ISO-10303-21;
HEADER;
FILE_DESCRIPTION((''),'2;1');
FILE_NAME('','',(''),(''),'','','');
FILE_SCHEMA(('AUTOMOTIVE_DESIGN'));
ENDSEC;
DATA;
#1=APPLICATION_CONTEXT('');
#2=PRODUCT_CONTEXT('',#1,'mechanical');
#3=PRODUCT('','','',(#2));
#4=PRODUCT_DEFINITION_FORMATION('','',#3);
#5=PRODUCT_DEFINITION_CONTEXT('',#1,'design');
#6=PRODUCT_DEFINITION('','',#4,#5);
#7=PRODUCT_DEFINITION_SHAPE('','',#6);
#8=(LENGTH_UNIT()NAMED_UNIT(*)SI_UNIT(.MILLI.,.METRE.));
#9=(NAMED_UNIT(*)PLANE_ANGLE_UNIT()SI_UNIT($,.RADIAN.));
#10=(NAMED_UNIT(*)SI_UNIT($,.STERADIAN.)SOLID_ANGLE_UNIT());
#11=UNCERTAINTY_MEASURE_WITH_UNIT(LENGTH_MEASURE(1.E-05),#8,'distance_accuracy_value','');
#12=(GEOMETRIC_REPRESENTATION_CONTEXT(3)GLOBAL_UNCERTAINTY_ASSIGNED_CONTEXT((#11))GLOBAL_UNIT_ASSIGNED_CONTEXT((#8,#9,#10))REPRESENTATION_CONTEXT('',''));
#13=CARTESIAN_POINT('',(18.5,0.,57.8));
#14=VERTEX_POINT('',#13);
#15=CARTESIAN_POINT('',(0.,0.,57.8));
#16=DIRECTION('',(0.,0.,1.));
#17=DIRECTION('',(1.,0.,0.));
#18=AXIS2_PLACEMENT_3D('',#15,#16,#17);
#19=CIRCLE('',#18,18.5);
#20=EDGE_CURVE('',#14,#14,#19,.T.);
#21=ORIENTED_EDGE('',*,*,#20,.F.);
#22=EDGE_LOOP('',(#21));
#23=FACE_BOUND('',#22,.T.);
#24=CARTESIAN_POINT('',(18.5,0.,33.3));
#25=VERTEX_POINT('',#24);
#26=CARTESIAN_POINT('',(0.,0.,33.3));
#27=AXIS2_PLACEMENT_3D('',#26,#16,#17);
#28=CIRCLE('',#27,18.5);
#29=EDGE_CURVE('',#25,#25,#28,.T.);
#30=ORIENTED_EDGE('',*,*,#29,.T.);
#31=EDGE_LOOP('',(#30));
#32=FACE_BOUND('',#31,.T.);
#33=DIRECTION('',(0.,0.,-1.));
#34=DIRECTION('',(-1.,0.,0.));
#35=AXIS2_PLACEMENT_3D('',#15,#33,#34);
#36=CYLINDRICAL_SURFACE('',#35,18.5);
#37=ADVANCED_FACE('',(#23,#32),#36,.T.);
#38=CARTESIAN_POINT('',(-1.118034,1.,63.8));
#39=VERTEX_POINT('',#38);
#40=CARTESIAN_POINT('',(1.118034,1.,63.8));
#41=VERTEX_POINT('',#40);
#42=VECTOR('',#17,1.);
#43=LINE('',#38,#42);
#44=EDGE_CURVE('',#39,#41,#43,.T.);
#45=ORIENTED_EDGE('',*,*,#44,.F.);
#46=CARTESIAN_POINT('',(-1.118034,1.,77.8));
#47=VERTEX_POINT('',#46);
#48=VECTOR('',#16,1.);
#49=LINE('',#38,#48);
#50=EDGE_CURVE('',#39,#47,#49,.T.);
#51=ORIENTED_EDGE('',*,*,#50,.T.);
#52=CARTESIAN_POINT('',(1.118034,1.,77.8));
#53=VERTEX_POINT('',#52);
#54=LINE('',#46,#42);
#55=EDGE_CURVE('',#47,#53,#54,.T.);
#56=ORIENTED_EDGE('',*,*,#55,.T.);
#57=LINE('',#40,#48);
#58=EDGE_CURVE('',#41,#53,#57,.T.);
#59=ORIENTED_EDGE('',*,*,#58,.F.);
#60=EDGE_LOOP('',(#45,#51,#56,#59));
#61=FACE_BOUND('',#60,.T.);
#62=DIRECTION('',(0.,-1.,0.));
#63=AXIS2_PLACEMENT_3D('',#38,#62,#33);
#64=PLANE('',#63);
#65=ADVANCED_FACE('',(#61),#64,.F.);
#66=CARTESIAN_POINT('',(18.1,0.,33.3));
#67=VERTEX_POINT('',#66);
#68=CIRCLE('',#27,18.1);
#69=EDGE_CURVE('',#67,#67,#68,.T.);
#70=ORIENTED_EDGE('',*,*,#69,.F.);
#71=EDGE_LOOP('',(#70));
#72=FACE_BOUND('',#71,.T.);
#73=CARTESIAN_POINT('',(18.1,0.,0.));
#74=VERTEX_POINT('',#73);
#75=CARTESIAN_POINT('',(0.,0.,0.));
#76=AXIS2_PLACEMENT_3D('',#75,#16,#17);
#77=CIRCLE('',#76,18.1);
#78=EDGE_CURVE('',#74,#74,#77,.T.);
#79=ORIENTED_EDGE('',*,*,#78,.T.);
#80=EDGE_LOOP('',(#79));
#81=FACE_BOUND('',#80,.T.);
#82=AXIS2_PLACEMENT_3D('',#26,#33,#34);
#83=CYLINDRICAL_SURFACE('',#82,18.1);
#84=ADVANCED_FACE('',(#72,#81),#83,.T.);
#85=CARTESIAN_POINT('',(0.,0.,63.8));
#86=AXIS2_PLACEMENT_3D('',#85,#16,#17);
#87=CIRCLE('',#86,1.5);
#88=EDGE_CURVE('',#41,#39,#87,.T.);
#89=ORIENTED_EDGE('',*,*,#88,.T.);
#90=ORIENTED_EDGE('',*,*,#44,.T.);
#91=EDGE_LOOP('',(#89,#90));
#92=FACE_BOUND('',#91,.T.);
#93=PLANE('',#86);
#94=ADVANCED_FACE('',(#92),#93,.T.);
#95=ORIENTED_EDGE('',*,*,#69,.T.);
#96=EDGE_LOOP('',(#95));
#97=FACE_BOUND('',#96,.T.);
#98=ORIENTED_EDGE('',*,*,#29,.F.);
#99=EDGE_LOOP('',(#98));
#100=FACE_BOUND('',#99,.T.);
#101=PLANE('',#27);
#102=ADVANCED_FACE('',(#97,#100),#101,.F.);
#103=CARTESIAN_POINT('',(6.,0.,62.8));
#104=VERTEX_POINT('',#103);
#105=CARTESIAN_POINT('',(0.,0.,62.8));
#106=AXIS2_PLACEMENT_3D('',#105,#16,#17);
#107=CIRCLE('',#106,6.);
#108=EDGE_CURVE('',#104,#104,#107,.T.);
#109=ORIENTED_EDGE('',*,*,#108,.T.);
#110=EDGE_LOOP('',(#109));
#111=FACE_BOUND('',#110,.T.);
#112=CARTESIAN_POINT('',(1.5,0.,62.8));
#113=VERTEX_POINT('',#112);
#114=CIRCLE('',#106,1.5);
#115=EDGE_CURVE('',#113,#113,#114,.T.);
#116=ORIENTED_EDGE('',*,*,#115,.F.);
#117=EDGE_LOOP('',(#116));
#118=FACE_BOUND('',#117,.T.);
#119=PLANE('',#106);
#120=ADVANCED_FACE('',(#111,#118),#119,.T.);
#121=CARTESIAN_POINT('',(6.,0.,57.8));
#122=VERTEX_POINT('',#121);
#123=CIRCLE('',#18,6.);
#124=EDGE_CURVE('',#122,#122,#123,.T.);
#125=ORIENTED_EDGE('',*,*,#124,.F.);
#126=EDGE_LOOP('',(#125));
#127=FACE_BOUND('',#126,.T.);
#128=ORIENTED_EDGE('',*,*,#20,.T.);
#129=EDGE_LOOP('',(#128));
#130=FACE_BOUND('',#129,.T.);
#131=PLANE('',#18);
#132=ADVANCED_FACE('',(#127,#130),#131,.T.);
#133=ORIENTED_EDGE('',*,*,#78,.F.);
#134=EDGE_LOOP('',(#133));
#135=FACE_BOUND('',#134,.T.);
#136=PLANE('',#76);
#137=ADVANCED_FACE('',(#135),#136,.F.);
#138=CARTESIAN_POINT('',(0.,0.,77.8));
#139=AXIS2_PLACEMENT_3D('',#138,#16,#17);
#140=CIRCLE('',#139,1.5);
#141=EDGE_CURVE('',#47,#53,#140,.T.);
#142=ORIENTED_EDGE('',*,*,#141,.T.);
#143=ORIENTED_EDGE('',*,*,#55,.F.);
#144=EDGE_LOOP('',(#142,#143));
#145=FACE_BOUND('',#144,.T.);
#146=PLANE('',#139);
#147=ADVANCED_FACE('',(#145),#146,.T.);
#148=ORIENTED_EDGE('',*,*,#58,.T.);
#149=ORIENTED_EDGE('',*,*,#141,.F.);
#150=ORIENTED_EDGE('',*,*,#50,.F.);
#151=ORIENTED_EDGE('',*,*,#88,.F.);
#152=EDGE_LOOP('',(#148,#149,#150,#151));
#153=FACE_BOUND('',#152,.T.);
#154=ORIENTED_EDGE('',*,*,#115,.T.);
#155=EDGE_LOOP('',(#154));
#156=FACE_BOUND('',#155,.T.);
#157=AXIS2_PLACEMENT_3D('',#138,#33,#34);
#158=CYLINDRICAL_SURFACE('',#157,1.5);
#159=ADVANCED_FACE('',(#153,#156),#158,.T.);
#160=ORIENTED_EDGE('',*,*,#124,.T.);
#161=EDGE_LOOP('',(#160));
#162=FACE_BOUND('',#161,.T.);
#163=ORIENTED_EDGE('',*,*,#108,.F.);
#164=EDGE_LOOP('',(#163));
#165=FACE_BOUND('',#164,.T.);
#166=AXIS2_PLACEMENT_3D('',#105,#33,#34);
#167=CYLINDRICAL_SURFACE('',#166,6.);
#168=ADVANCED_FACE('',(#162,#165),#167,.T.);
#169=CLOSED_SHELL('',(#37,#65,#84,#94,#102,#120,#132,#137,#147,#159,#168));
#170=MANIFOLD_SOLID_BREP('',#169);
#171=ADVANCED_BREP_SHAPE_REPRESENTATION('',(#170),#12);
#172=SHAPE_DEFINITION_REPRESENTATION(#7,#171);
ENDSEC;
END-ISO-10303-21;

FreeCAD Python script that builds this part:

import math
import FreeCAD as App
import Part
import Sketcher
Q = App.Units.Quantity

doc = App.newDocument("Part")
body = doc.addObject("PartDesign::Body", "Body")

# Sketch on XY plane
sketch1 = body.newObject("Sketcher::SketchObject", "Sketch")
sketch1.AttachmentSupport = (doc.getObject("XY_Plane"), [""])
sketch1.MapMode = "FlatFace"
sketch1.addGeometry(Part.Circle(App.Vector(0, 0, 0), App.Vector(0, 0, 1), 18), False)
sketch1.addConstraint([
    Sketcher.Constraint("Coincident", 0, 3, -1, 1),
    Sketcher.Constraint("Diameter", 0, Q("36.2 mm")),
])
pad1 = body.newObject("PartDesign::Pad", "Pad")
pad1.Profile = sketch1
pad1.Length = 33.3

# Sketch on XY plane
sketch2 = body.newObject("Sketcher::SketchObject", "Sketch001")
sketch2.AttachmentSupport = (doc.getObject("XY_Plane"), [""])
sketch2.MapMode = "FlatFace"
sketch2.AttachmentOffset = App.Placement(App.Vector(0, 0, 33.3), App.Rotation())
sketch2.addGeometry(Part.Circle(App.Vector(0, 0, 0), App.Vector(0, 0, 1), 18), False)
sketch2.addConstraint([
    Sketcher.Constraint("Coincident", 0, 3, -1, 1),
    Sketcher.Constraint("Diameter", 0, Q("37 mm")),
])
pad2 = body.newObject("PartDesign::Pad", "Pad001")
pad2.Profile = sketch2
pad2.Length = 24.5

# Sketch on XY plane
sketch3 = body.newObject("Sketcher::SketchObject", "Sketch002")
sketch3.AttachmentSupport = (doc.getObject("XY_Plane"), [""])
sketch3.MapMode = "FlatFace"
sketch3.AttachmentOffset = App.Placement(App.Vector(0, 0, 57.8), App.Rotation())
sketch3.addGeometry(Part.Circle(App.Vector(0, 0, 0), App.Vector(0, 0, 1), 6), False)
sketch3.addConstraint([
    Sketcher.Constraint("Coincident", 0, 3, -1, 1),
    Sketcher.Constraint("Diameter", 0, Q("12 mm")),
])
pad3 = body.newObject("PartDesign::Pad", "Pad002")
pad3.Profile = sketch3
pad3.Length = 5

# Sketch on XY plane
sketch4 = body.newObject("Sketcher::SketchObject", "Sketch003")
sketch4.AttachmentSupport = (doc.getObject("XY_Plane"), [""])
sketch4.MapMode = "FlatFace"
sketch4.AttachmentOffset = App.Placement(App.Vector(0, 0, 62.8), App.Rotation())
sketch4.addGeometry(Part.Circle(App.Vector(0, 0, 0), App.Vector(0, 0, 1), 1.5), False)
sketch4.addConstraint([
    Sketcher.Constraint("Coincident", 0, 3, -1, 1),
    Sketcher.Constraint("Diameter", 0, Q("3 mm")),
])
pad4 = body.newObject("PartDesign::Pad", "Pad003")
pad4.Profile = sketch4
pad4.Length = 15

# Sketch on XY plane
sketch5 = body.newObject("Sketcher::SketchObject", "Sketch004")
sketch5.AttachmentSupport = (doc.getObject("XY_Plane"), [""])
sketch5.MapMode = "FlatFace"
sketch5.AttachmentOffset = App.Placement(App.Vector(0, 0, 63.8), App.Rotation())
sketch5.addGeometry([
    Part.LineSegment(App.Vector(-1.1, 1, 0), App.Vector(1.1, 1, 0)),
    Part.ArcOfCircle(Part.Circle(App.Vector(0, 0, 0), App.Vector(0, 0, 1), 1.5), math.radians(42), math.radians(138)),
], False)
sketch5.addConstraint([
    Sketcher.Constraint("Coincident", 0, 1, 1, 2),
    Sketcher.Constraint("Coincident", 1, 1, 0, 2),
    Sketcher.Constraint("Horizontal", 0),
    Sketcher.Constraint("Coincident", 1, 3, -1, 1),
    Sketcher.Constraint("Radius", 1, Q("1.5 mm")),
    Sketcher.Constraint("DistanceY", -1, 1, 0, 1, Q("1 mm")),
])
pocket1 = body.newObject("PartDesign::Pocket", "Pocket")
pocket1.Profile = sketch5
pocket1.Length = 14
pocket1.Reversed = True

doc.recompute()
